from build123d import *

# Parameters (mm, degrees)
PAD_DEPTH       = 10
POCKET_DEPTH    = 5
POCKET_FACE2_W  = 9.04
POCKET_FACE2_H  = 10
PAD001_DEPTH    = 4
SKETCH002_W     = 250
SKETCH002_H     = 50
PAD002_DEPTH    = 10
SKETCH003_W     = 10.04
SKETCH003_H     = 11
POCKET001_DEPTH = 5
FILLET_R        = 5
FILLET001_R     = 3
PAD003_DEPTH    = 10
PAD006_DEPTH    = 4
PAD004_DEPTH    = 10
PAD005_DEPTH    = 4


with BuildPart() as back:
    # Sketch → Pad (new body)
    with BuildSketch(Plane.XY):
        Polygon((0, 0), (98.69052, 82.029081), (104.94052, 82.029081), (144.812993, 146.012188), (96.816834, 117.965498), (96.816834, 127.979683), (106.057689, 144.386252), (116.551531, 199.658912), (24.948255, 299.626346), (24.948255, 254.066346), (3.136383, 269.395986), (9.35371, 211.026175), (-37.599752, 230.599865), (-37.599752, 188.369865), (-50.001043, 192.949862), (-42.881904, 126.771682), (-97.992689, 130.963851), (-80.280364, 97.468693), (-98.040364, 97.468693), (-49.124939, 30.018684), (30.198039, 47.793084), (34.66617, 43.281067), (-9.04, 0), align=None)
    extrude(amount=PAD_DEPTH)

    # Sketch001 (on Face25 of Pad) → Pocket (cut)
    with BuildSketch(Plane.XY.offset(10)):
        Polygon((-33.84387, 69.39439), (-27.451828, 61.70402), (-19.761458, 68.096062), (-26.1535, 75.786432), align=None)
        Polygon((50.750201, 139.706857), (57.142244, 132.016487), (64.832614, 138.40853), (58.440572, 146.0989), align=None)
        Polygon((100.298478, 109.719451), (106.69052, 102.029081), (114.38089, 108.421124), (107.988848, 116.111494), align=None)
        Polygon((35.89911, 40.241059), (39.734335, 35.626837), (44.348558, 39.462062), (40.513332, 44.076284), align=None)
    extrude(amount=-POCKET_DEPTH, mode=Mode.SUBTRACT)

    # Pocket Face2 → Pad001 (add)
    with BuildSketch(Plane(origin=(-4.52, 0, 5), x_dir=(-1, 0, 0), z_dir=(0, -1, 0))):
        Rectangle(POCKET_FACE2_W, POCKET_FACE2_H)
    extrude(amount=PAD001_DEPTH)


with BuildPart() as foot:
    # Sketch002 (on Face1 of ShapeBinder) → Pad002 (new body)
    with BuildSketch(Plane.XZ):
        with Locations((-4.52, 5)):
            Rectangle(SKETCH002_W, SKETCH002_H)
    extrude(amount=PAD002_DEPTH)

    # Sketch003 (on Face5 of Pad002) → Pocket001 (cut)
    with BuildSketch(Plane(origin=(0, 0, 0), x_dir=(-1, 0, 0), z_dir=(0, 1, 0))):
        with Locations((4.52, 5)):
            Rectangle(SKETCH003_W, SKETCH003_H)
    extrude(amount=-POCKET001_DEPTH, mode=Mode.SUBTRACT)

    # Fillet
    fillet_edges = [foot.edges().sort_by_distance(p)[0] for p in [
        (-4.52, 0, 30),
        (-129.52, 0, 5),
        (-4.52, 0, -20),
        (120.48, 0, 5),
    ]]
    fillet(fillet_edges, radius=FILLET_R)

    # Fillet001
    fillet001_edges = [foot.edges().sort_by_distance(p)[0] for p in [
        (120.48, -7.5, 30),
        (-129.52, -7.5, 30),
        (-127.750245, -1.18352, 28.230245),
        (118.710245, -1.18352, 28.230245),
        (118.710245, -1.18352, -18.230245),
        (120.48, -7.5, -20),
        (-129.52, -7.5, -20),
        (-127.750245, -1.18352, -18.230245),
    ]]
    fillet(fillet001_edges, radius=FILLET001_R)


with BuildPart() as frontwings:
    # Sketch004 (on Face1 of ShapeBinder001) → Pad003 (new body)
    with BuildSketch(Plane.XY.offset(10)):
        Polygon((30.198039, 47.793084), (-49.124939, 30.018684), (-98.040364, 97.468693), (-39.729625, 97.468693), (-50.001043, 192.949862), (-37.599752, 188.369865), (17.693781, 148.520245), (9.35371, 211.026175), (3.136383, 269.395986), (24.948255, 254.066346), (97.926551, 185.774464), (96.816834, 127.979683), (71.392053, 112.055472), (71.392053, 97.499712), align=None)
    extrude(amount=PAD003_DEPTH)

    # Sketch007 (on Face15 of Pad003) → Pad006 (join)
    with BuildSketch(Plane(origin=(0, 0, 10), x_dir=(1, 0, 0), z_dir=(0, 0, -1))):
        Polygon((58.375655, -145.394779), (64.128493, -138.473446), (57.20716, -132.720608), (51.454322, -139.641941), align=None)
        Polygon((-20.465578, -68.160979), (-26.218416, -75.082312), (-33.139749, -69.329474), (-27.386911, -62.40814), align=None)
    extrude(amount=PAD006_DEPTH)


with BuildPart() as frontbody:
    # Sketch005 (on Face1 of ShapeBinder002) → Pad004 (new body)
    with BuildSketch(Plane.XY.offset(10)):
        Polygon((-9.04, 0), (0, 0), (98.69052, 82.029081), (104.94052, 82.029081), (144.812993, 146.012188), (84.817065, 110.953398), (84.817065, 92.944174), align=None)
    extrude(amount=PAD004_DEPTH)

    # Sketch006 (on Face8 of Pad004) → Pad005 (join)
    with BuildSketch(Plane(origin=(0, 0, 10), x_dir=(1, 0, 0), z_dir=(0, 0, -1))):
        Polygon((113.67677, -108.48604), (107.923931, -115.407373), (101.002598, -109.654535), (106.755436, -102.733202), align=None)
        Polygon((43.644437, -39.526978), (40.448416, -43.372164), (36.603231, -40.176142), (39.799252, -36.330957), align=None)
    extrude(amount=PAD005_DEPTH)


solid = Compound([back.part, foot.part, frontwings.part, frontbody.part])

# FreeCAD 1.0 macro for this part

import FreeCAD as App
import Part
import Sketcher
Q = App.Units.Quantity


def edges_at(feature, points):
    """Names of the edges that pass closest to the given points."""
    edges = feature.Shape.Edges
    near = lambda p: min(range(len(edges)), key=lambda i: edges[i].distToShape(Part.Vertex(*p))[0])
    return sorted({f"Edge{near(p) + 1}" for p in points})


def add_polygon(sketch, points):
    """Adds a closed chain of lines whose ends are joined by coincident constraints."""
    first, n = sketch.GeometryCount, len(points)
    for a, b in zip(points, points[1:] + points[:1]):
        sketch.addGeometry(Part.LineSegment(App.Vector(*a, 0), App.Vector(*b, 0)), False)
    for i in range(n):
        sketch.addConstraint(Sketcher.Constraint("Coincident", first + i, 2, first + (i + 1) % n, 1))

doc = App.newDocument("Part")
body = doc.addObject("PartDesign::Body", "Body")

sketch1 = body.newObject("Sketcher::SketchObject", "Sketch")
sketch1.AttachmentSupport = (doc.getObject("XY_Plane"), [""])
sketch1.MapMode = "FlatFace"
add_polygon(sketch1, [(0, 0), (98.69052, 82.029081), (104.94052, 82.029081), (144.812993, 146.012188), (96.816834, 117.965498), (96.816834, 127.979683), (106.057689, 144.386252), (116.551531, 199.658912), (24.948255, 299.626346), (24.948255, 254.066346), (3.136383, 269.395986), (9.35371, 211.026175), (-37.599752, 230.599865), (-37.599752, 188.369865), (-50.001043, 192.949862), (-42.881904, 126.771682), (-97.992689, 130.963851), (-80.280364, 97.468693), (-98.040364, 97.468693), (-49.124939, 30.018684), (30.198039, 47.793084), (34.66617, 43.281067), (-9.04, 0)])
sketch1.addConstraint(Sketcher.Constraint("Horizontal", 1))
sketch1.addConstraint(Sketcher.Constraint("Vertical", 4))
sketch1.addConstraint(Sketcher.Constraint("Vertical", 8))
sketch1.addConstraint(Sketcher.Constraint("Vertical", 12))
sketch1.addConstraint(Sketcher.Constraint("Horizontal", 17))
sketch1.addConstraint(Sketcher.Constraint("Horizontal", 22))
sketch1.addConstraint(Sketcher.Constraint("Coincident", 22, 2, -1, 1))
sketch1.addConstraint(Sketcher.Constraint("Perpendicular", 20, 21))
sketch1.addConstraint(Sketcher.Constraint("Angle", 3, Q("-149.700001 deg")))
sketch1.addConstraint(Sketcher.Constraint("Angle", 7, Q("132.5 deg")))
sketch1.addConstraint(Sketcher.Constraint("Angle", 9, Q("144.900001 deg")))
sketch1.addConstraint(Sketcher.Constraint("Distance", 10, Q("58.7 mm")))
sketch1.addConstraint(Sketcher.Constraint("DistanceX", 1, 1, 1, 2, Q("6.25 mm")))
sketch1.addConstraint(Sketcher.Constraint("DistanceX", 17, 2, 17, 1, Q("17.76 mm")))
sketch1.addConstraint(Sketcher.Constraint("DistanceX", 22, 1, 22, 2, Q("9.04 mm")))
sketch1.addConstraint(Sketcher.Constraint("DistanceY", 8, 2, 8, 1, Q("45.56 mm")))
sketch1.addConstraint(Sketcher.Constraint("DistanceY", 12, 2, 12, 1, Q("42.23 mm")))
sketch1.addConstraint(Sketcher.Constraint("Angle", 2, Q("58.07 deg")))
sketch1.addConstraint(Sketcher.Constraint("Angle", 5, Q("60.609998 deg")))
sketch1.addConstraint(Sketcher.Constraint("Angle", 6, Q("79.25 deg")))
sketch1.addConstraint(Sketcher.Constraint("Angle", 10, Q("-83.919999 deg")))
sketch1.addConstraint(Sketcher.Constraint("Angle", 11, Q("157.370001 deg")))
sketch1.addConstraint(Sketcher.Constraint("Angle", 13, Q("159.729998 deg")))
sketch1.addConstraint(Sketcher.Constraint("Angle", 14, Q("-83.86 deg")))
sketch1.addConstraint(Sketcher.Constraint("Angle", 15, Q("175.65 deg")))
sketch1.addConstraint(Sketcher.Constraint("Angle", 16, Q("-62.13 deg")))
sketch1.addConstraint(Sketcher.Constraint("Angle", 18, Q("-54.05 deg")))
sketch1.addConstraint(Sketcher.Constraint("Angle", 19, Q("12.63 deg")))
sketch1.addConstraint(Sketcher.Constraint("Angle", 20, Q("-45.280002 deg")))
sketch1.addConstraint(Sketcher.Constraint("Distance", 0, Q("128.33 mm")))
sketch1.addConstraint(Sketcher.Constraint("Distance", 2, Q("75.39 mm")))
sketch1.addConstraint(Sketcher.Constraint("Distance", 3, Q("55.59 mm")))
sketch1.addConstraint(Sketcher.Constraint("Distance", 5, Q("18.83 mm")))
sketch1.addConstraint(Sketcher.Constraint("Distance", 6, Q("56.260001 mm")))
sketch1.addConstraint(Sketcher.Constraint("Distance", 7, Q("135.59 mm")))
sketch1.addConstraint(Sketcher.Constraint("Distance", 9, Q("26.66 mm")))
sketch1.addConstraint(Sketcher.Constraint("Distance", 11, Q("50.87 mm")))
sketch1.addConstraint(Sketcher.Constraint("Distance", 13, Q("13.22 mm")))
sketch1.addConstraint(Sketcher.Constraint("Distance", 14, Q("66.56 mm")))
sketch1.addConstraint(Sketcher.Constraint("Distance", 15, Q("55.27 mm")))
sketch1.addConstraint(Sketcher.Constraint("Distance", 16, Q("37.89 mm")))
sketch1.addConstraint(Sketcher.Constraint("Distance", 18, Q("83.320001 mm")))
sketch1.addConstraint(Sketcher.Constraint("Distance", 19, Q("81.29 mm")))
sketch1.addConstraint(Sketcher.Constraint("Distance", 20, Q("6.349999 mm")))
sketch1.addConstraint(Sketcher.Constraint("Distance", 21, Q("61.51 mm")))
pad1 = body.newObject("PartDesign::Pad", "Pad")
pad1.Profile = sketch1
pad1.Length = 10

sketch2 = body.newObject("Sketcher::SketchObject", "Sketch001")
sketch2.AttachmentSupport = (doc.getObject("XY_Plane"), [""])
sketch2.MapMode = "FlatFace"
sketch2.AttachmentOffset = App.Placement(App.Vector(0, 0, 10), App.Rotation())
add_polygon(sketch2, [(-33.84387, 69.39439), (-27.451828, 61.70402), (-19.761458, 68.096062), (-26.1535, 75.786432)])
add_polygon(sketch2, [(50.750201, 139.706857), (57.142244, 132.016487), (64.832614, 138.40853), (58.440572, 146.0989)])
add_polygon(sketch2, [(100.298478, 109.719451), (106.69052, 102.029081), (114.38089, 108.421124), (107.988848, 116.111494)])
add_polygon(sketch2, [(35.89911, 40.241059), (39.734335, 35.626837), (44.348558, 39.462062), (40.513332, 44.076284)])
sketch2.addConstraint(Sketcher.Constraint("Perpendicular", 0, 1))
sketch2.addConstraint(Sketcher.Constraint("Perpendicular", 1, 2))
sketch2.addConstraint(Sketcher.Constraint("Perpendicular", 2, 3))
sketch2.addConstraint(Sketcher.Constraint("Perpendicular", 3, 4))
sketch2.addConstraint(Sketcher.Constraint("Perpendicular", 4, 5))
sketch2.addConstraint(Sketcher.Constraint("Perpendicular", 5, 6))
sketch2.addConstraint(Sketcher.Constraint("Perpendicular", 6, 7))
sketch2.addConstraint(Sketcher.Constraint("Perpendicular", 7, 8))
sketch2.addConstraint(Sketcher.Constraint("Perpendicular", 8, 9))
sketch2.addConstraint(Sketcher.Constraint("Perpendicular", 9, 10))
sketch2.addConstraint(Sketcher.Constraint("Perpendicular", 10, 11))
sketch2.addConstraint(Sketcher.Constraint("Perpendicular", 11, 12))
sketch2.addConstraint(Sketcher.Constraint("Perpendicular", 12, 13))
sketch2.addConstraint(Sketcher.Constraint("Perpendicular", 13, 14))
sketch2.addConstraint(Sketcher.Constraint("Perpendicular", 14, 15))
sketch2.addConstraint(Sketcher.Constraint("Equal", 0, 1))
sketch2.addConstraint(Sketcher.Constraint("Equal", 3, 4))
sketch2.addConstraint(Sketcher.Constraint("Equal", 4, 5))
sketch2.addConstraint(Sketcher.Constraint("Equal", 7, 8))
sketch2.addConstraint(Sketcher.Constraint("Equal", 8, 9))
sketch2.addConstraint(Sketcher.Constraint("Equal", 12, 13))
sketch2.addConstraint(Sketcher.Constraint("Distance", 0, Q("10 mm")))
sketch2.addConstraint(Sketcher.Constraint("Distance", 12, Q("6 mm")))
sketch2.addConstraint(Sketcher.Constraint("DistanceY", 13, 2, 1, 2, Q("28.634 mm")))
sketch2.addConstraint(Sketcher.Constraint("DistanceX", 2, 2, -1, 1, Q("26.1535 mm")))
sketch2.addConstraint(Sketcher.Constraint("DistanceY", -1, 1, 6, 2, Q("146.0989 mm")))
sketch2.addConstraint(Sketcher.Constraint("DistanceX", -1, 1, 7, 2, Q("50.750201 mm")))
sketch2.addConstraint(Sketcher.Constraint("DistanceY", 2, 2, 5, 2, Q("62.622098 mm")))
sketch2.addConstraint(Sketcher.Constraint("DistanceY", -1, 1, 0, 2, Q("61.70402 mm")))
sketch2.addConstraint(Sketcher.Constraint("DistanceX", -1, 1, 8, 2, Q("106.69052 mm")))
sketch2.addConstraint(Sketcher.Constraint("DistanceY", -1, 1, 8, 2, Q("102.029081 mm")))
sketch2.addConstraint(Sketcher.Constraint("DistanceX", -1, 1, 14, 2, Q("40.513332 mm")))
pocket1 = body.newObject("PartDesign::Pocket", "Pocket")
pocket1.Profile = sketch2
pocket1.Length = 5

sketch3 = body.newObject("Sketcher::SketchObject", "Sketch002")
sketch3.AttachmentSupport = (doc.getObject("XZ_Plane"), [""])
sketch3.MapMode = "FlatFace"
add_polygon(sketch3, [(0, 0), (0, 10), (-9.04, 10), (-9.04, 0)])
sketch3.addConstraint(Sketcher.Constraint("Vertical", 0))
sketch3.addConstraint(Sketcher.Constraint("Horizontal", 1))
sketch3.addConstraint(Sketcher.Constraint("Vertical", 2))
sketch3.addConstraint(Sketcher.Constraint("Horizontal", 3))
sketch3.addConstraint(Sketcher.Constraint("Coincident", 3, 2, -1, 1))
sketch3.addConstraint(Sketcher.Constraint("DistanceY", 0, 1, 0, 2, Q("10 mm")))
sketch3.addConstraint(Sketcher.Constraint("DistanceX", 1, 2, 1, 1, Q("9.04 mm")))
pad2 = body.newObject("PartDesign::Pad", "Pad001")
pad2.Profile = sketch3
pad2.Length = 4
body2 = doc.addObject("PartDesign::Body", "Body001")

sketch4 = body2.newObject("Sketcher::SketchObject", "Sketch003")
sketch4.AttachmentSupport = (doc.getObject("XZ_Plane001"), [""])
sketch4.MapMode = "FlatFace"
add_polygon(sketch4, [(-129.52, 30), (-129.52, -20), (120.48, -20), (120.48, 30)])
sketch4.addConstraint(Sketcher.Constraint("Vertical", 0))
sketch4.addConstraint(Sketcher.Constraint("Horizontal", 1))
sketch4.addConstraint(Sketcher.Constraint("Vertical", 2))
sketch4.addConstraint(Sketcher.Constraint("Horizontal", 3))
sketch4.addConstraint(Sketcher.Constraint("DistanceX", 1, 1, 1, 2, Q("250 mm")))
sketch4.addConstraint(Sketcher.Constraint("DistanceY", 0, 2, 0, 1, Q("50 mm")))
sketch4.addConstraint(Sketcher.Constraint("DistanceY", 0, 2, -1, 1, Q("20 mm")))
sketch4.addConstraint(Sketcher.Constraint("DistanceX", 0, 2, -1, 1, Q("129.52 mm")))
pad3 = body2.newObject("PartDesign::Pad", "Pad002")
pad3.Profile = sketch4
pad3.Length = 10

sketch5 = body2.newObject("Sketcher::SketchObject", "Sketch004")
sketch5.AttachmentSupport = (doc.getObject("XZ_Plane001"), [""])
sketch5.MapMode = "FlatFace"
add_polygon(sketch5, [(0.5, 10.5), (0.5, -0.5), (-9.54, -0.5), (-9.54, 10.5)])
sketch5.addConstraint(Sketcher.Constraint("Vertical", 0))
sketch5.addConstraint(Sketcher.Constraint("Horizontal", 1))
sketch5.addConstraint(Sketcher.Constraint("Vertical", 2))
sketch5.addConstraint(Sketcher.Constraint("Horizontal", 3))
sketch5.addConstraint(Sketcher.Constraint("DistanceY", 0, 2, 0, 1, Q("11 mm")))
sketch5.addConstraint(Sketcher.Constraint("DistanceX", 1, 2, 1, 1, Q("10.04 mm")))
sketch5.addConstraint(Sketcher.Constraint("DistanceX", -1, 1, 0, 2, Q("0.5 mm")))
sketch5.addConstraint(Sketcher.Constraint("DistanceY", 0, 2, -1, 1, Q("0.5 mm")))
pocket2 = body2.newObject("PartDesign::Pocket", "Pocket001")
pocket2.Profile = sketch5
pocket2.Length = 5
pocket2.Reversed = True
doc.recompute()

fillet = body2.newObject("PartDesign::Fillet", "Fillet")
fillet.Base = (pocket2, edges_at(pocket2, [
    (-4.52, 0, 30),
    (-129.52, 0, 5),
    (-4.52, 0, -20),
    (120.48, 0, 5),
]))
fillet.Radius = 5
doc.recompute()

fillet2 = body2.newObject("PartDesign::Fillet", "Fillet001")
fillet2.Base = (fillet, edges_at(fillet, [
    (120.48, -7.5, 30),
    (-129.52, -7.5, 30),
    (-127.75, -1.184, 28.23),
    (118.71, -1.184, 28.23),
    (118.71, -1.184, -18.23),
    (120.48, -7.5, -20),
    (-129.52, -7.5, -20),
    (-127.75, -1.184, -18.23),
]))
fillet2.Radius = 3
body3 = doc.addObject("PartDesign::Body", "Body002")

sketch6 = body3.newObject("Sketcher::SketchObject", "Sketch005")
sketch6.AttachmentSupport = (doc.getObject("XY_Plane002"), [""])
sketch6.MapMode = "FlatFace"
sketch6.AttachmentOffset = App.Placement(App.Vector(0, 0, 10), App.Rotation())
add_polygon(sketch6, [(-49.124939, 30.018684), (30.198039, 47.793084), (71.392053, 97.499712), (71.392053, 112.055472), (96.816834, 127.979683), (97.926551, 185.774464), (24.948255, 254.066346), (3.136383, 269.395986), (9.35371, 211.026175), (17.693781, 148.520245), (-37.599752, 188.369865), (-50.001043, 192.949862), (-39.729625, 97.468693), (-98.040364, 97.468693)])
sketch6.addConstraint(Sketcher.Constraint("Vertical", 2))
sketch6.addConstraint(Sketcher.Constraint("Horizontal", 12))
sketch6.addConstraint(Sketcher.Constraint("Distance", 3, Q("30 mm")))
sketch6.addConstraint(Sketcher.Constraint("Angle", 4, Q("88.899999 deg")))
sketch6.addConstraint(Sketcher.Constraint("Angle", 5, Q("136.9 deg")))
sketch6.addConstraint(Sketcher.Constraint("Angle", 6, Q("144.900001 deg")))
sketch6.addConstraint(Sketcher.Constraint("Angle", 8, Q("-82.400001 deg")))
sketch6.addConstraint(Sketcher.Constraint("Distance", 7, Q("58.7 mm")))
sketch6.addConstraint(Sketcher.Constraint("Angle", 0, Q("12.63 deg")))
sketch6.addConstraint(Sketcher.Constraint("Angle", 1, Q("50.350001 deg")))
sketch6.addConstraint(Sketcher.Constraint("Angle", 3, Q("32.059999 deg")))
sketch6.addConstraint(Sketcher.Constraint("Angle", 7, Q("-83.919999 deg")))
sketch6.addConstraint(Sketcher.Constraint("Angle", 9, Q("144.22 deg")))
sketch6.addConstraint(Sketcher.Constraint("Angle", 10, Q("159.729998 deg")))
sketch6.addConstraint(Sketcher.Constraint("Angle", 11, Q("-83.86 deg")))
sketch6.addConstraint(Sketcher.Constraint("Angle", 13, Q("-54.05 deg")))
sketch6.addConstraint(Sketcher.Constraint("Distance", 0, Q("81.29 mm")))
sketch6.addConstraint(Sketcher.Constraint("Distance", 6, Q("26.66 mm")))
sketch6.addConstraint(Sketcher.Constraint("Distance", 10, Q("13.22 mm")))
sketch6.addConstraint(Sketcher.Constraint("Distance", 13, Q("83.320001 mm")))
sketch6.addConstraint(Sketcher.Constraint("DistanceX", 12, 2, 12, 1, Q("58.310739 mm")))
sketch6.addConstraint(Sketcher.Constraint("DistanceY", 2, 1, 2, 2, Q("14.55576 mm")))
sketch6.addConstraint(Sketcher.Constraint("DistanceY", 0, 2, 3, 2, Q("80.186599 mm")))
sketch6.addConstraint(Sketcher.Constraint("DistanceX", 10, 2, 5, 2, Q("74.949298 mm")))
sketch6.addConstraint(Sketcher.Constraint("Distance", 5, Q("99.948051 mm")))
sketch6.addConstraint(Sketcher.Constraint("Distance", 9, Q("68.156929 mm")))
sketch6.addConstraint(Sketcher.Constraint("DistanceX", -1, 1, 0, 2, Q("30.198039 mm")))
sketch6.addConstraint(Sketcher.Constraint("DistanceY", -1, 1, 2, 2, Q("112.055472 mm")))
pad4 = body3.newObject("PartDesign::Pad", "Pad003")
pad4.Profile = sketch6
pad4.Length = 10

sketch7 = body3.newObject("Sketcher::SketchObject", "Sketch006")
sketch7.AttachmentSupport = (doc.getObject("XY_Plane002"), [""])
sketch7.MapMode = "FlatFace"
sketch7.AttachmentOffset = App.Placement(App.Vector(0, 0, 10), App.Rotation())
add_polygon(sketch7, [(58.375655, 145.394779), (64.128493, 138.473446), (57.20716, 132.720608), (51.454322, 139.641941)])
add_polygon(sketch7, [(-26.218416, 75.082312), (-20.465578, 68.160979), (-27.386911, 62.40814), (-33.139749, 69.329474)])
sketch7.addConstraint(Sketcher.Constraint("Perpendicular", 0, 1))
sketch7.addConstraint(Sketcher.Constraint("Perpendicular", 1, 2))
sketch7.addConstraint(Sketcher.Constraint("Perpendicular", 2, 3))
sketch7.addConstraint(Sketcher.Constraint("Perpendicular", 3, 4))
sketch7.addConstraint(Sketcher.Constraint("Perpendicular", 4, 5))
sketch7.addConstraint(Sketcher.Constraint("Perpendicular", 5, 6))
sketch7.addConstraint(Sketcher.Constraint("Perpendicular", 6, 7))
sketch7.addConstraint(Sketcher.Constraint("Equal", 0, 1))
sketch7.addConstraint(Sketcher.Constraint("Equal", 3, 4))
sketch7.addConstraint(Sketcher.Constraint("Equal", 4, 5))
sketch7.addConstraint(Sketcher.Constraint("Distance", 0, Q("9 mm")))
sketch7.addConstraint(Sketcher.Constraint("DistanceX", 4, 2, 2, 2, Q("71.9199 mm")))
sketch7.addConstraint(Sketcher.Constraint("DistanceY", 4, 2, 3, 2, Q("77.2338 mm")))
sketch7.addConstraint(Sketcher.Constraint("DistanceX", -1, 1, 1, 2, Q("57.20716 mm")))
sketch7.addConstraint(Sketcher.Constraint("DistanceY", -1, 1, 1, 2, Q("132.720608 mm")))
sketch7.addConstraint(Sketcher.Constraint("DistanceX", -1, 1, 2, 2, Q("51.454322 mm")))
pad5 = body3.newObject("PartDesign::Pad", "Pad004")
pad5.Profile = sketch7
pad5.Length = 4
pad5.Reversed = True
body4 = doc.addObject("PartDesign::Body", "Body003")

sketch8 = body4.newObject("Sketcher::SketchObject", "Sketch007")
sketch8.AttachmentSupport = (doc.getObject("XY_Plane003"), [""])
sketch8.MapMode = "FlatFace"
sketch8.AttachmentOffset = App.Placement(App.Vector(0, 0, 10), App.Rotation())
add_polygon(sketch8, [(-9.04, 0), (0, 0), (98.69052, 82.029081), (104.94052, 82.029081), (144.812993, 146.012188), (84.817065, 110.953398), (84.817065, 92.944174)])
sketch8.addConstraint(Sketcher.Constraint("Horizontal", 0))
sketch8.addConstraint(Sketcher.Constraint("Horizontal", 2))
sketch8.addConstraint(Sketcher.Constraint("Vertical", 5))
sketch8.addConstraint(Sketcher.Constraint("Coincident", 0, 2, -1, 1))
sketch8.addConstraint(Sketcher.Constraint("Angle", 4, Q("-149.7 deg")))
sketch8.addConstraint(Sketcher.Constraint("DistanceX", 0, 1, 0, 2, Q("9.04 mm")))
sketch8.addConstraint(Sketcher.Constraint("DistanceX", 2, 1, 2, 2, Q("6.25 mm")))
sketch8.addConstraint(Sketcher.Constraint("Angle", 3, Q("58.07 deg")))
sketch8.addConstraint(Sketcher.Constraint("Angle", 6, Q("-135.28 deg")))
sketch8.addConstraint(Sketcher.Constraint("Distance", 1, Q("128.33 mm")))
sketch8.addConstraint(Sketcher.Constraint("Distance", 3, Q("75.39 mm")))
sketch8.addConstraint(Sketcher.Constraint("Distance", 6, Q("132.09 mm")))
sketch8.addConstraint(Sketcher.Constraint("DistanceY", -1, 1, 4, 2, Q("110.953398 mm")))
pad6 = body4.newObject("PartDesign::Pad", "Pad005")
pad6.Profile = sketch8
pad6.Length = 10

sketch9 = body4.newObject("Sketcher::SketchObject", "Sketch008")
sketch9.AttachmentSupport = (doc.getObject("XY_Plane003"), [""])
sketch9.MapMode = "FlatFace"
sketch9.AttachmentOffset = App.Placement(App.Vector(0, 0, 10), App.Rotation())
add_polygon(sketch9, [(107.923931, 115.407373), (113.67677, 108.48604), (106.755436, 102.733202), (101.002598, 109.654535)])
add_polygon(sketch9, [(40.448416, 43.372164), (43.644437, 39.526978), (39.799252, 36.330957), (36.603231, 40.176142)])
sketch9.addConstraint(Sketcher.Constraint("Perpendicular", 0, 1))
sketch9.addConstraint(Sketcher.Constraint("Perpendicular", 1, 2))
sketch9.addConstraint(Sketcher.Constraint("Perpendicular", 2, 3))
sketch9.addConstraint(Sketcher.Constraint("Perpendicular", 3, 4))
sketch9.addConstraint(Sketcher.Constraint("Perpendicular", 4, 5))
sketch9.addConstraint(Sketcher.Constraint("Perpendicular", 5, 6))
sketch9.addConstraint(Sketcher.Constraint("Perpendicular", 6, 7))
sketch9.addConstraint(Sketcher.Constraint("Equal", 0, 1))
sketch9.addConstraint(Sketcher.Constraint("Equal", 4, 5))
sketch9.addConstraint(Sketcher.Constraint("Distance", 0, Q("9 mm")))
sketch9.addConstraint(Sketcher.Constraint("Distance", 4, Q("5.000001 mm")))
sketch9.addConstraint(Sketcher.Constraint("DistanceX", 4, 2, 1, 2, Q("63.110999 mm")))
sketch9.addConstraint(Sketcher.Constraint("DistanceX", -1, 1, 2, 2, Q("101.002598 mm")))
sketch9.addConstraint(Sketcher.Constraint("DistanceY", 6, 2, 0, 2, Q("68.309898 mm")))
sketch9.addConstraint(Sketcher.Constraint("DistanceX", -1, 1, 0, 2, Q("113.67677 mm")))
sketch9.addConstraint(Sketcher.Constraint("DistanceY", -1, 1, 0, 2, Q("108.48604 mm")))
pad7 = body4.newObject("PartDesign::Pad", "Pad006")
pad7.Profile = sketch9
pad7.Length = 4
pad7.Reversed = True

doc.recompute()
